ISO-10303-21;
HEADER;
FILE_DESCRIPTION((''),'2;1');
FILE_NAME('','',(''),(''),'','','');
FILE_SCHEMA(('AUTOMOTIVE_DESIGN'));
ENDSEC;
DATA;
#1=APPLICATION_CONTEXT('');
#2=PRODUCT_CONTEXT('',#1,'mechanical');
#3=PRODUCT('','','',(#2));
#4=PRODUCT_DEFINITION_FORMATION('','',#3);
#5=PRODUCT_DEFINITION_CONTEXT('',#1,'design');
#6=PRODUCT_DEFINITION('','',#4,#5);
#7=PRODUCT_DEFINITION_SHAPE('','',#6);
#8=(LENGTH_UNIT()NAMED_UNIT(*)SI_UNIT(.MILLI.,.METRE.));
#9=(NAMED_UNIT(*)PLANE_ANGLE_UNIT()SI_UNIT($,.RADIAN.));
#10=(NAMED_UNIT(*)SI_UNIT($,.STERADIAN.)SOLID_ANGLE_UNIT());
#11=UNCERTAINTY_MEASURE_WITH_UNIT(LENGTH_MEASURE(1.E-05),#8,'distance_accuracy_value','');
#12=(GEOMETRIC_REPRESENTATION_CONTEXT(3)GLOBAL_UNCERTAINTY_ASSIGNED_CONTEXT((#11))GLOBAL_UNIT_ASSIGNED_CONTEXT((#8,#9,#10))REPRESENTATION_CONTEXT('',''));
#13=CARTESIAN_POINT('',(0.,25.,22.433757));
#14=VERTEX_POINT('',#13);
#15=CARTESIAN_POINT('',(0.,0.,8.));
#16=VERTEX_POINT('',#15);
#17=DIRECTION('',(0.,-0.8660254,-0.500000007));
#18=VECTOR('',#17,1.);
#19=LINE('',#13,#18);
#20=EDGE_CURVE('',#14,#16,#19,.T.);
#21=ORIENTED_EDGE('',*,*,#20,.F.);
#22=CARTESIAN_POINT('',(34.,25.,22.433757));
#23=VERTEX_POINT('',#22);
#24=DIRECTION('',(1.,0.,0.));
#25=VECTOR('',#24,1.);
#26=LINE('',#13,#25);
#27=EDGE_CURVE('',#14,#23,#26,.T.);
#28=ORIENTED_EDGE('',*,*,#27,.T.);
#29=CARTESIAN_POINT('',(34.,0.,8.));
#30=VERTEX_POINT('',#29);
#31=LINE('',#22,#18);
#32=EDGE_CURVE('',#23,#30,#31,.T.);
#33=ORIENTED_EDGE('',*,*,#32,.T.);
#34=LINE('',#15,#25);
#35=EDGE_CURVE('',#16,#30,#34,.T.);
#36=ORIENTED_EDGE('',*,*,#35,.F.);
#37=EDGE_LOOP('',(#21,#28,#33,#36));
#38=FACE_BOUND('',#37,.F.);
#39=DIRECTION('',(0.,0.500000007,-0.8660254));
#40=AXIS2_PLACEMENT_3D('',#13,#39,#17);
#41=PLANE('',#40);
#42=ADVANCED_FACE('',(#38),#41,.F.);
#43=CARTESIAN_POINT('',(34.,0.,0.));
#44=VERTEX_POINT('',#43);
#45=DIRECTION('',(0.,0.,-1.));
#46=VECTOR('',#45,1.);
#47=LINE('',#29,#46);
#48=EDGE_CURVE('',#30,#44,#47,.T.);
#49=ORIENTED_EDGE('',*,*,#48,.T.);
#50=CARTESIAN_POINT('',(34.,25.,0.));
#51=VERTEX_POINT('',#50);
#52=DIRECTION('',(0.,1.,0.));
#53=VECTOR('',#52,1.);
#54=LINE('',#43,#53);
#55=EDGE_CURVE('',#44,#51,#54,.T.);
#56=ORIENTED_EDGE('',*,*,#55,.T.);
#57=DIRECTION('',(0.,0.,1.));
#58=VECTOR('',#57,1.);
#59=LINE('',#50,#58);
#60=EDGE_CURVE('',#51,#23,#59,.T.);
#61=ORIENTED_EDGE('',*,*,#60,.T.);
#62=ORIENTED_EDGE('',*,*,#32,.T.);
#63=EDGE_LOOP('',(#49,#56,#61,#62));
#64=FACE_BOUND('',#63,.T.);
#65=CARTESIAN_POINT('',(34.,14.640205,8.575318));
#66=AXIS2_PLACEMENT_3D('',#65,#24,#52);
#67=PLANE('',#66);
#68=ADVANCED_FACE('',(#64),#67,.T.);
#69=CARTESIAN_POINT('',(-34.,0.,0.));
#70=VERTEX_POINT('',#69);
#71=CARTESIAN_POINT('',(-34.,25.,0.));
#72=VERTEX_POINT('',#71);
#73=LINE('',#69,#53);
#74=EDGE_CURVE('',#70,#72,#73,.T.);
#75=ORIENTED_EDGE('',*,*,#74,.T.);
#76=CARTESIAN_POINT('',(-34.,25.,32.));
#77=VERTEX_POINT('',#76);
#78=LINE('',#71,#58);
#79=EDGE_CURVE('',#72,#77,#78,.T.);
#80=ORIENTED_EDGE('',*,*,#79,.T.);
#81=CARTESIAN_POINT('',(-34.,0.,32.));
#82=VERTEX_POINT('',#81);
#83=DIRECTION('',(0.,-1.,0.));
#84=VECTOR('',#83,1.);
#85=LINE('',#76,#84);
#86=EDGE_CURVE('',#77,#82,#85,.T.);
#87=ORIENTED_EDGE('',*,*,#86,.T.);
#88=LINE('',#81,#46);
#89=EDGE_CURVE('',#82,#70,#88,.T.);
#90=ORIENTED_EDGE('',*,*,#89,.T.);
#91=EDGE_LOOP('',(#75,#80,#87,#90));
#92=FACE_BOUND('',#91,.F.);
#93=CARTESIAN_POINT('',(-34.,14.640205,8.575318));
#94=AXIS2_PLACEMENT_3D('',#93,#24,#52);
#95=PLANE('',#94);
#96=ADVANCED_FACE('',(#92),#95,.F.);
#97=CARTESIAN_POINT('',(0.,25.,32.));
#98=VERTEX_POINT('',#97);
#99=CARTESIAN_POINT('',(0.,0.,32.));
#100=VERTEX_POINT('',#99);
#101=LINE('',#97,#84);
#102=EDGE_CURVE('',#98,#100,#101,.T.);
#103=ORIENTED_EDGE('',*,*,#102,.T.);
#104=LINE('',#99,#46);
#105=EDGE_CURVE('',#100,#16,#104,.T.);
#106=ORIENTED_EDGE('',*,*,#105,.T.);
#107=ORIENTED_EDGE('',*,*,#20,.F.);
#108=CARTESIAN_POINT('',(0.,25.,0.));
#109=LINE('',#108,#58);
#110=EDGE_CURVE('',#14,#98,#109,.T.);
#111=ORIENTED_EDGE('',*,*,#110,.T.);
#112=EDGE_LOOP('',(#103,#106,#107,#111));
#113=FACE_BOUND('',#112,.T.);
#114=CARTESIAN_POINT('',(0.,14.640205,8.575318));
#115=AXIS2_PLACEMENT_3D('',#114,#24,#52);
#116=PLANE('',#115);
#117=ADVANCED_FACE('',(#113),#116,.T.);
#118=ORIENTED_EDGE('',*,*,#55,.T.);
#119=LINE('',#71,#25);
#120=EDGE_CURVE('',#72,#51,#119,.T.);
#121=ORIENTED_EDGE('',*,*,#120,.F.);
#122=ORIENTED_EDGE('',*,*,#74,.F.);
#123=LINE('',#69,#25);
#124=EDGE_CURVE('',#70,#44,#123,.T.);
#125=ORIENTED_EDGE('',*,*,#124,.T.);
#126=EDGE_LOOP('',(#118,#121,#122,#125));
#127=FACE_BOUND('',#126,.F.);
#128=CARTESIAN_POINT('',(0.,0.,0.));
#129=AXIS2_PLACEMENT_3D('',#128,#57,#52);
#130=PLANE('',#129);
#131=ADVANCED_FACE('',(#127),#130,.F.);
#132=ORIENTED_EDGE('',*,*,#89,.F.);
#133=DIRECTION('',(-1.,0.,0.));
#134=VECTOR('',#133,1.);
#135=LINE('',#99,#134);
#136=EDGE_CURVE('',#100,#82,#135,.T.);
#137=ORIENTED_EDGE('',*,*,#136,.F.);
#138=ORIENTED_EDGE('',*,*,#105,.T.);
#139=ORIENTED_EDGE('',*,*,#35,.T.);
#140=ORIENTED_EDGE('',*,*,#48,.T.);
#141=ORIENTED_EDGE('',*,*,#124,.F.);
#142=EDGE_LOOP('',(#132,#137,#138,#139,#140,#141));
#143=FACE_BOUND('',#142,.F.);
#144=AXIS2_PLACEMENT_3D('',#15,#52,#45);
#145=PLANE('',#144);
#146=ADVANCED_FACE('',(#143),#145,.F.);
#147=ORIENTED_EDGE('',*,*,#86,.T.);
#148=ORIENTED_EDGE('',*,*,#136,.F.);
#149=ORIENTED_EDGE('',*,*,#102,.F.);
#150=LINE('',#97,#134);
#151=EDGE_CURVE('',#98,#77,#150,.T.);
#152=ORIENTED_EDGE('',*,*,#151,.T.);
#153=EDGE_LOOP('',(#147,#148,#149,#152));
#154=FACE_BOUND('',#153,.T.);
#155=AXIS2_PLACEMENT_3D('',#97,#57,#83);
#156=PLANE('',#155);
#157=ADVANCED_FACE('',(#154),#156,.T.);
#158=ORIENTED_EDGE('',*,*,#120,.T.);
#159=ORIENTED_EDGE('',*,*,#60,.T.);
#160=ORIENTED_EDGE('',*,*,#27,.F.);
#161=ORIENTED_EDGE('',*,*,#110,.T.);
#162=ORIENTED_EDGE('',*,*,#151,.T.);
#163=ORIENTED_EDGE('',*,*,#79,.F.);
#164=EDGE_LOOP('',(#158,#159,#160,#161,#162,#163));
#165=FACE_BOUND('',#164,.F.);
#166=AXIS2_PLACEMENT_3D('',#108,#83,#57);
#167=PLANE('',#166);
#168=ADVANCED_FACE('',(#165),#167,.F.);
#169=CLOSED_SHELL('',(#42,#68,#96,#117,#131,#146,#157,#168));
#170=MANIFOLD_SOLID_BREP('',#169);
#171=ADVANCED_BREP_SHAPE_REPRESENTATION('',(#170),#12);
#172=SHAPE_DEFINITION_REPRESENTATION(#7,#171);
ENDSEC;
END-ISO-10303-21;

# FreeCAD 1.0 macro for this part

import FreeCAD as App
import Part
import Sketcher
from FreeCAD import Vector
Q = App.Units.Quantity

doc = App.newDocument("Part")
body = doc.addObject("PartDesign::Body", "Body")

# Sketch on YZ plane
sketch1 = body.newObject("Sketcher::SketchObject", "Sketch")
sketch1.AttachmentSupport = (doc.getObject("YZ_Plane"), [""])
sketch1.MapMode = "FlatFace"
sketch1.addGeometry([
    Part.LineSegment(Vector(0, 0, 0), Vector(25, 0, 0)),
    Part.LineSegment(Vector(25, 0, 0), Vector(25, 32, 0)),
    Part.LineSegment(Vector(25, 32, 0), Vector(0, 32, 0)),
    Part.LineSegment(Vector(0, 32, 0), Vector(0, 0, 0)),
], False)
sketch1.addConstraint([
    Sketcher.Constraint("Coincident", 0, 2, 1, 1),
    Sketcher.Constraint("Coincident", 1, 2, 2, 1),
    Sketcher.Constraint("Coincident", 2, 2, 3, 1),
    Sketcher.Constraint("Coincident", 3, 2, 0, 1),
    Sketcher.Constraint("Horizontal", 0),
    Sketcher.Constraint("Vertical", 1),
    Sketcher.Constraint("Horizontal", 2),
    Sketcher.Constraint("Vertical", 3),
    Sketcher.Constraint("Coincident", 3, 2, -1, 1),
    Sketcher.Constraint("DistanceX", 0, 1, 0, 2, 25.0),
    Sketcher.Constraint("DistanceY", 1, 1, 1, 2, 32.0),
])
pad1 = body.newObject("PartDesign::Pad", "Pad")
pad1.Profile = sketch1
pad1.Length = 34
pad1.Reversed = True

# Sketch on YZ plane
sketch2 = body.newObject("Sketcher::SketchObject", "Sketch001")
sketch2.AttachmentSupport = (doc.getObject("YZ_Plane"), [""])
sketch2.MapMode = "FlatFace"
sketch2.addGeometry([
    Part.LineSegment(Vector(0, 8, 0), Vector(0, 0, 0)),
    Part.LineSegment(Vector(0, 0, 0), Vector(25, 0, 0)),
    Part.LineSegment(Vector(25, 0, 0), Vector(25, 22, 0)),
    Part.LineSegment(Vector(25, 22, 0), Vector(0, 8, 0)),
], False)
sketch2.addConstraint([
    Sketcher.Constraint("Coincident", 0, 2, 1, 1),
    Sketcher.Constraint("Coincident", 1, 2, 2, 1),
    Sketcher.Constraint("Coincident", 2, 2, 3, 1),
    Sketcher.Constraint("Coincident", 3, 2, 0, 1),
    Sketcher.Constraint("Vertical", 0),
    Sketcher.Constraint("Horizontal", 1),
    Sketcher.Constraint("Vertical", 2),
    Sketcher.Constraint("Coincident", 0, 2, -1, 1),
    Sketcher.Constraint("DistanceX", 1, 1, 1, 2, 25.0),
    Sketcher.Constraint("DistanceY", 0, 2, 0, 1, 8.0),
    Sketcher.Constraint("Angle", 3, Q("-150 deg")),
])
pad2 = body.newObject("PartDesign::Pad", "Pad001")
pad2.Profile = sketch2
pad2.Length = 34

doc.recompute()
